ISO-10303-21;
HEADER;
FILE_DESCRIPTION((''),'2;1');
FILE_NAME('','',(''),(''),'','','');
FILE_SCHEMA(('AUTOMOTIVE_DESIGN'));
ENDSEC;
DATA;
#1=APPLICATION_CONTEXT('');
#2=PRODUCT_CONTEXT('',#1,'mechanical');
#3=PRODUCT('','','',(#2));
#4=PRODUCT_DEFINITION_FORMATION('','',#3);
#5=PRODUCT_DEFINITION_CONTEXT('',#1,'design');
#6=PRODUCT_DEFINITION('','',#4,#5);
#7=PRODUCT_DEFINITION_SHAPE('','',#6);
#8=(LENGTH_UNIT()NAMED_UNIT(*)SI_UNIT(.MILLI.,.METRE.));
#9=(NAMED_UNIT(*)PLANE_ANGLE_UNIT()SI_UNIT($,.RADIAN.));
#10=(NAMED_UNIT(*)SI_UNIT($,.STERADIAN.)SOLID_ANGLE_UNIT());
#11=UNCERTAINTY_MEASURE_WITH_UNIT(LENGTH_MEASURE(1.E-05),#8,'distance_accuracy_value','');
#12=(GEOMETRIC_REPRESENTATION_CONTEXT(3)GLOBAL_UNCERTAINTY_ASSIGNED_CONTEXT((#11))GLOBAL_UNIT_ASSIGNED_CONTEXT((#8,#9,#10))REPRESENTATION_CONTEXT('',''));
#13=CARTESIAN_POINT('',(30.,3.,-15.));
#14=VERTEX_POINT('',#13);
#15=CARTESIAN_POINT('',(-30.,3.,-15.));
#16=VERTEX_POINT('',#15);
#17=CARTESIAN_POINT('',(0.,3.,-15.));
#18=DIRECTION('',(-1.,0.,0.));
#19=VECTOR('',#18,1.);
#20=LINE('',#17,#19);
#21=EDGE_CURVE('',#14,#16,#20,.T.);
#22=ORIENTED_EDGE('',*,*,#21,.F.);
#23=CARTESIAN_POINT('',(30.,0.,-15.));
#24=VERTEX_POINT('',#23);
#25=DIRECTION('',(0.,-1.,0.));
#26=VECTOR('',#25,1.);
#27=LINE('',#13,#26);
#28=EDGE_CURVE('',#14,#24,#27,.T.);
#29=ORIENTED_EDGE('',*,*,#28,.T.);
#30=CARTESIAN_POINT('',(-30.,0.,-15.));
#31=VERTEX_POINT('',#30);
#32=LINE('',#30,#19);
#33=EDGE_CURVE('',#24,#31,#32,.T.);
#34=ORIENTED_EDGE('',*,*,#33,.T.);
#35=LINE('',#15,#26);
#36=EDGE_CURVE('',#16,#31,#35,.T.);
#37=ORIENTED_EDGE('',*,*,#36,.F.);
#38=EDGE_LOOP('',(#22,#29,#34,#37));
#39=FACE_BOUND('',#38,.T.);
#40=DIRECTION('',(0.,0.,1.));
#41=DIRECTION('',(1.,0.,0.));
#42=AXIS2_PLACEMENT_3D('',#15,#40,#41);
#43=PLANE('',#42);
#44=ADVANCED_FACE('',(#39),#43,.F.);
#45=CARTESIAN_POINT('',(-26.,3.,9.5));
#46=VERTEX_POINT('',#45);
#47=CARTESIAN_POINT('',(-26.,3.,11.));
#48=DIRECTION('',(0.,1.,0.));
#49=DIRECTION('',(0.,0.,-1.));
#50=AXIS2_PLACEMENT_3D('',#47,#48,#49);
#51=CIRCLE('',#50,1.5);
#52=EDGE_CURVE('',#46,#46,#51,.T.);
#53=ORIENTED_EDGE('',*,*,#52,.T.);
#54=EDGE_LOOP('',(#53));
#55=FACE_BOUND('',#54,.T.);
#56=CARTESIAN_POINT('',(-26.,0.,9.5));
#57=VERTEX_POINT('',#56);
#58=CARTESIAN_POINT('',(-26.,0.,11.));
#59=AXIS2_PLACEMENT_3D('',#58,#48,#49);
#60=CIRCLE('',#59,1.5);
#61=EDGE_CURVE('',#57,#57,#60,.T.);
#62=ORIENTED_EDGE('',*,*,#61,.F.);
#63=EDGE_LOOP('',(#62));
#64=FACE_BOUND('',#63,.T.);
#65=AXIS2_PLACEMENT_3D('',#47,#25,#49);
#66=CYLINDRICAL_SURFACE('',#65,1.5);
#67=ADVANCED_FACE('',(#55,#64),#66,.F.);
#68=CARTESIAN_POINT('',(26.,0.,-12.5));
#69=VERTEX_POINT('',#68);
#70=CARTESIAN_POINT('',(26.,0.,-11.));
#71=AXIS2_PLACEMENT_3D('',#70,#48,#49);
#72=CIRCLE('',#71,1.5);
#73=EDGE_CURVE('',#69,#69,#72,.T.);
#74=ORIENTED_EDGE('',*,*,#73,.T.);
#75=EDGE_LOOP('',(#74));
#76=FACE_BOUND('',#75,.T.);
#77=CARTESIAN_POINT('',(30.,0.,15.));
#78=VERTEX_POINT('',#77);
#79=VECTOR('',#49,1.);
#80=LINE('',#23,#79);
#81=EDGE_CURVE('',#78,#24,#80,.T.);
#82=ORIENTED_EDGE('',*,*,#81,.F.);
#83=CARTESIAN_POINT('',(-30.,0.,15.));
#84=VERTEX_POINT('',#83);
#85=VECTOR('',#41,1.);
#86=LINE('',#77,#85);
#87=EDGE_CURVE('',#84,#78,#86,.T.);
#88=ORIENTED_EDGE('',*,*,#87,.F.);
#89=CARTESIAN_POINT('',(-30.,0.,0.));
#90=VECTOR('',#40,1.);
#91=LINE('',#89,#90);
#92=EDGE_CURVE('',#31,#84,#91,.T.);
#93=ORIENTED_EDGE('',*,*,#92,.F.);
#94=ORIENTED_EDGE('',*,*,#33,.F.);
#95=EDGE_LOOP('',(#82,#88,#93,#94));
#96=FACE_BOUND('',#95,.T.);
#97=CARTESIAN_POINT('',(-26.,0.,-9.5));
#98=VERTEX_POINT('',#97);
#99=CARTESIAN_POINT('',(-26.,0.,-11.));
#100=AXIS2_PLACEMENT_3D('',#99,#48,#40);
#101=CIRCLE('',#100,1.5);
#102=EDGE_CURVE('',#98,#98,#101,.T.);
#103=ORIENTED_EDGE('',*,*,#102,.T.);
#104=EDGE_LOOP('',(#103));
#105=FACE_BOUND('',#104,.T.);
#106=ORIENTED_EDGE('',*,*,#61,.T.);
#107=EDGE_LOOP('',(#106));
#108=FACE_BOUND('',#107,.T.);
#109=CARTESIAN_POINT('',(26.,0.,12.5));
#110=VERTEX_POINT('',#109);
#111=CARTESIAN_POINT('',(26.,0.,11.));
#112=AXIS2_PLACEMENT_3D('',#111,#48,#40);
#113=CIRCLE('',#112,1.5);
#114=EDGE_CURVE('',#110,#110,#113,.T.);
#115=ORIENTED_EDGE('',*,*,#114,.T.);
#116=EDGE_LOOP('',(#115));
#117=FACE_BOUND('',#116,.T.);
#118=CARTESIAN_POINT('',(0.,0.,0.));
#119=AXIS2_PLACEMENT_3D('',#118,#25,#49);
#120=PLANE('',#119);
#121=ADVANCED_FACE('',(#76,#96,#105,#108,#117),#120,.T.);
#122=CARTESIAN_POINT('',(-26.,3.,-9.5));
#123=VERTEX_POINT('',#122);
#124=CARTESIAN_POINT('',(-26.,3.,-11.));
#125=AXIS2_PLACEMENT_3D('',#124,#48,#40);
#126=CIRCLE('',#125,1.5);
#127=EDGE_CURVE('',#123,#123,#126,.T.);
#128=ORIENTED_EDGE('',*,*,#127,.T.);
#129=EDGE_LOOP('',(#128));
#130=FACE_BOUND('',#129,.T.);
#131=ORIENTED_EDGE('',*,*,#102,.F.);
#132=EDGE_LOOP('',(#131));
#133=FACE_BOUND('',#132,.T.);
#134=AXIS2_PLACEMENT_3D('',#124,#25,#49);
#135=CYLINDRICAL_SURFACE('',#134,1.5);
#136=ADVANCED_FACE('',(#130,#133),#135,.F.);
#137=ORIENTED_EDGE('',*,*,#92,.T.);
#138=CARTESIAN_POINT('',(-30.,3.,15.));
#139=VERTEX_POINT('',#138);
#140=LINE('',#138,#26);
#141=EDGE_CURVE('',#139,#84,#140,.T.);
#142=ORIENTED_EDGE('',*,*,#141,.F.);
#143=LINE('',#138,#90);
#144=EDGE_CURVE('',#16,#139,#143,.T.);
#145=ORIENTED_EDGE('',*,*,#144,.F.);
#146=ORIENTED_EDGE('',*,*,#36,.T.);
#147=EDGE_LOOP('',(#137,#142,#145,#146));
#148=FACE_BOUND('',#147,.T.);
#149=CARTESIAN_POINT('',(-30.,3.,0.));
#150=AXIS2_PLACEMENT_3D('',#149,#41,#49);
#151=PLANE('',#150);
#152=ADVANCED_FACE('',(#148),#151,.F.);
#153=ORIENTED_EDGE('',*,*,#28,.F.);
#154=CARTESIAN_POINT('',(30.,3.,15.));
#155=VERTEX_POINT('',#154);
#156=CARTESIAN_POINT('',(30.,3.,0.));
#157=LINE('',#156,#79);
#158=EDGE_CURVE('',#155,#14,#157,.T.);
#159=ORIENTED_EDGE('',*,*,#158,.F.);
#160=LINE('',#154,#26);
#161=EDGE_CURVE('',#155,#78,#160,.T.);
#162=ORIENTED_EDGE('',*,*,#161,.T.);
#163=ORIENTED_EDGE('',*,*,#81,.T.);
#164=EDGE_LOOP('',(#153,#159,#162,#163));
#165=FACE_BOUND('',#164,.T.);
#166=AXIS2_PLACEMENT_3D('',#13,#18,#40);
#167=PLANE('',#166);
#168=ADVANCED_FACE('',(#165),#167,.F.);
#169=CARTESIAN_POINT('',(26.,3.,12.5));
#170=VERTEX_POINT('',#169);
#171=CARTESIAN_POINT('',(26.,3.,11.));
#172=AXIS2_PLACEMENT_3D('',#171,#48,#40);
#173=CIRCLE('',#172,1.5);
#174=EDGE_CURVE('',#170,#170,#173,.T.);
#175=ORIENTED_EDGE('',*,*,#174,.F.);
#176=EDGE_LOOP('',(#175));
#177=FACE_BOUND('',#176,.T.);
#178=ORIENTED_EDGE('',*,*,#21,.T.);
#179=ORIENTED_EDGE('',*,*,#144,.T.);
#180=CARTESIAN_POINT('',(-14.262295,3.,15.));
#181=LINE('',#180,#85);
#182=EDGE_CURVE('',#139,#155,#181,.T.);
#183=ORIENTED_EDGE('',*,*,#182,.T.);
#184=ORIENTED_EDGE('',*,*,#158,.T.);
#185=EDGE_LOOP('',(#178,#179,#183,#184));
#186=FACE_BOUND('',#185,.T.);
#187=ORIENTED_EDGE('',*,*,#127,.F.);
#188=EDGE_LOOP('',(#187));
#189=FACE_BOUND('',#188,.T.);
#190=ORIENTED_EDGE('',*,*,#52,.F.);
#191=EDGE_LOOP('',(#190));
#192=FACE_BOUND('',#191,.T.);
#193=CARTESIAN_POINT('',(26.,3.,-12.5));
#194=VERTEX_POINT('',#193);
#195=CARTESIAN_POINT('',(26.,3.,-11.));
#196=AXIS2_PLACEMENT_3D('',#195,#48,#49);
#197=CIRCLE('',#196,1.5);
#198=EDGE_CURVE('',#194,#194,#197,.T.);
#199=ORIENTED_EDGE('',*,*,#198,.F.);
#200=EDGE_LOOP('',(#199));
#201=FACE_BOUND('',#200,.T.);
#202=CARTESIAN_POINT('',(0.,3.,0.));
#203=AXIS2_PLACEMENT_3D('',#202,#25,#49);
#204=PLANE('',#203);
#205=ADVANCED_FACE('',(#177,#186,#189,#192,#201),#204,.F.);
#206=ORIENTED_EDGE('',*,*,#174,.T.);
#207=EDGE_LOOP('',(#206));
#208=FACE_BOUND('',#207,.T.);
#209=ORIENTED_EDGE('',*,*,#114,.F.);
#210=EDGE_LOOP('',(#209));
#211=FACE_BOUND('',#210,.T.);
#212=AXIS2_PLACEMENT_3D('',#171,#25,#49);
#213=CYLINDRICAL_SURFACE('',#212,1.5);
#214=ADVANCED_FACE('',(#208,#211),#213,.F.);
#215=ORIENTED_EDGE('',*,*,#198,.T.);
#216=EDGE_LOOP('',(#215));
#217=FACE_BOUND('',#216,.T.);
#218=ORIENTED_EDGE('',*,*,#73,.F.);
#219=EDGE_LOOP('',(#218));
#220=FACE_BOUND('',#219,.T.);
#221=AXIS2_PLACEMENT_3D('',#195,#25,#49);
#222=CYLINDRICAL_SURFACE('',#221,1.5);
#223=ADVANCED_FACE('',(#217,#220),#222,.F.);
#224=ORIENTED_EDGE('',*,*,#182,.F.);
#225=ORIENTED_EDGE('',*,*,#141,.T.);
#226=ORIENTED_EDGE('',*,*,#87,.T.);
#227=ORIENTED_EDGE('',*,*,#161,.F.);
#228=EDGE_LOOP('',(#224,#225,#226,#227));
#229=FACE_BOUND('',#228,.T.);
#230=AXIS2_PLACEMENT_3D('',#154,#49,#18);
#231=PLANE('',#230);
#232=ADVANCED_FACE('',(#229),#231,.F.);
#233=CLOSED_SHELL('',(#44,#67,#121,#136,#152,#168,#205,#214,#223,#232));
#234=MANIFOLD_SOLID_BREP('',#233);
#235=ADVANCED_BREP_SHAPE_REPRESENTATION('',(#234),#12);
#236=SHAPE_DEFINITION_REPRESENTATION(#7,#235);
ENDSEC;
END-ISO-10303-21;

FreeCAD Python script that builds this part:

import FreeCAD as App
import Part
import Sketcher
Q = App.Units.Quantity

doc = App.newDocument("Part")
params = doc.addObject("Spreadsheet::Sheet", "Params")
for row, (alias, value) in enumerate([
    ("sketch1_diameter", "3 mm"),
    ("sketch1_width", "60 mm"),
    ("sketch1_height", "30 mm"),
    ("pad1_length", "3 mm"),
], start=1):
    params.set(f"A{row}", alias)
    params.set(f"B{row}", "=" + value)
    params.setAlias(f"B{row}", alias)

body = doc.addObject("PartDesign::Body", "Body")

sketch1 = body.newObject("Sketcher::SketchObject", "Sketch")
sketch1.AttachmentSupport = (doc.getObject("XZ_Plane"), [""])
sketch1.MapMode = "FlatFace"
sketch1.addGeometry([
    Part.LineSegment(App.Vector(-30, -15, 0), App.Vector(-30, 15, 0)),
    Part.LineSegment(App.Vector(-30, 15, 0), App.Vector(30, 15, 0)),
    Part.LineSegment(App.Vector(30, 15, 0), App.Vector(30, -15, 0)),
    Part.LineSegment(App.Vector(30, -15, 0), App.Vector(-30, -15, 0)),
    Part.Circle(App.Vector(26, 11, 0), App.Vector(0, 0, 1), 1.5),
    Part.Circle(App.Vector(-26, 11, 0), App.Vector(0, 0, 1), 1.5),
    Part.Circle(App.Vector(26, -11, 0), App.Vector(0, 0, 1), 1.5),
    Part.Circle(App.Vector(-26, -11, 0), App.Vector(0, 0, 1), 1.5),
], False)
sketch1.addConstraint([
    Sketcher.Constraint("Coincident", 0, 2, 1, 1),
    Sketcher.Constraint("Coincident", 1, 2, 2, 1),
    Sketcher.Constraint("Coincident", 2, 2, 3, 1),
    Sketcher.Constraint("Coincident", 3, 2, 0, 1),
    Sketcher.Constraint("Vertical", 0),
    Sketcher.Constraint("Horizontal", 1),
    Sketcher.Constraint("Vertical", 2),
    Sketcher.Constraint("Horizontal", 3),
    Sketcher.Constraint("Equal", 4, 5),
    Sketcher.Constraint("Equal", 5, 6),
    Sketcher.Constraint("Equal", 6, 7),
    Sketcher.Constraint("Symmetric", 5, 3, 6, 3, -1, 1),
    Sketcher.Constraint("Symmetric", 4, 3, 7, 3, -1, 1),
    Sketcher.Constraint("Symmetric", 0, 2, 2, 2, -1, 1),
    Sketcher.Constraint("Symmetric", 4, 3, 5, 3, -2),
    Sketcher.Constraint("Diameter", 4, Q("3 mm")),
    Sketcher.Constraint("DistanceX", 1, 1, 1, 2, Q("60 mm")),
    Sketcher.Constraint("DistanceY", 0, 1, 0, 2, Q("30 mm")),
    Sketcher.Constraint("DistanceX", -1, 1, 4, 3, Q("26 mm")),
    Sketcher.Constraint("DistanceY", -1, 1, 4, 3, Q("11 mm")),
])
sketch1.setExpression("Constraints[15]", "Params.sketch1_diameter")
sketch1.setExpression("Constraints[16]", "Params.sketch1_width")
sketch1.setExpression("Constraints[17]", "Params.sketch1_height")
pad1 = body.newObject("PartDesign::Pad", "Pad")
pad1.Profile = sketch1
pad1.setExpression("Length", "Params.pad1_length")
pad1.Reversed = True

doc.recompute()
